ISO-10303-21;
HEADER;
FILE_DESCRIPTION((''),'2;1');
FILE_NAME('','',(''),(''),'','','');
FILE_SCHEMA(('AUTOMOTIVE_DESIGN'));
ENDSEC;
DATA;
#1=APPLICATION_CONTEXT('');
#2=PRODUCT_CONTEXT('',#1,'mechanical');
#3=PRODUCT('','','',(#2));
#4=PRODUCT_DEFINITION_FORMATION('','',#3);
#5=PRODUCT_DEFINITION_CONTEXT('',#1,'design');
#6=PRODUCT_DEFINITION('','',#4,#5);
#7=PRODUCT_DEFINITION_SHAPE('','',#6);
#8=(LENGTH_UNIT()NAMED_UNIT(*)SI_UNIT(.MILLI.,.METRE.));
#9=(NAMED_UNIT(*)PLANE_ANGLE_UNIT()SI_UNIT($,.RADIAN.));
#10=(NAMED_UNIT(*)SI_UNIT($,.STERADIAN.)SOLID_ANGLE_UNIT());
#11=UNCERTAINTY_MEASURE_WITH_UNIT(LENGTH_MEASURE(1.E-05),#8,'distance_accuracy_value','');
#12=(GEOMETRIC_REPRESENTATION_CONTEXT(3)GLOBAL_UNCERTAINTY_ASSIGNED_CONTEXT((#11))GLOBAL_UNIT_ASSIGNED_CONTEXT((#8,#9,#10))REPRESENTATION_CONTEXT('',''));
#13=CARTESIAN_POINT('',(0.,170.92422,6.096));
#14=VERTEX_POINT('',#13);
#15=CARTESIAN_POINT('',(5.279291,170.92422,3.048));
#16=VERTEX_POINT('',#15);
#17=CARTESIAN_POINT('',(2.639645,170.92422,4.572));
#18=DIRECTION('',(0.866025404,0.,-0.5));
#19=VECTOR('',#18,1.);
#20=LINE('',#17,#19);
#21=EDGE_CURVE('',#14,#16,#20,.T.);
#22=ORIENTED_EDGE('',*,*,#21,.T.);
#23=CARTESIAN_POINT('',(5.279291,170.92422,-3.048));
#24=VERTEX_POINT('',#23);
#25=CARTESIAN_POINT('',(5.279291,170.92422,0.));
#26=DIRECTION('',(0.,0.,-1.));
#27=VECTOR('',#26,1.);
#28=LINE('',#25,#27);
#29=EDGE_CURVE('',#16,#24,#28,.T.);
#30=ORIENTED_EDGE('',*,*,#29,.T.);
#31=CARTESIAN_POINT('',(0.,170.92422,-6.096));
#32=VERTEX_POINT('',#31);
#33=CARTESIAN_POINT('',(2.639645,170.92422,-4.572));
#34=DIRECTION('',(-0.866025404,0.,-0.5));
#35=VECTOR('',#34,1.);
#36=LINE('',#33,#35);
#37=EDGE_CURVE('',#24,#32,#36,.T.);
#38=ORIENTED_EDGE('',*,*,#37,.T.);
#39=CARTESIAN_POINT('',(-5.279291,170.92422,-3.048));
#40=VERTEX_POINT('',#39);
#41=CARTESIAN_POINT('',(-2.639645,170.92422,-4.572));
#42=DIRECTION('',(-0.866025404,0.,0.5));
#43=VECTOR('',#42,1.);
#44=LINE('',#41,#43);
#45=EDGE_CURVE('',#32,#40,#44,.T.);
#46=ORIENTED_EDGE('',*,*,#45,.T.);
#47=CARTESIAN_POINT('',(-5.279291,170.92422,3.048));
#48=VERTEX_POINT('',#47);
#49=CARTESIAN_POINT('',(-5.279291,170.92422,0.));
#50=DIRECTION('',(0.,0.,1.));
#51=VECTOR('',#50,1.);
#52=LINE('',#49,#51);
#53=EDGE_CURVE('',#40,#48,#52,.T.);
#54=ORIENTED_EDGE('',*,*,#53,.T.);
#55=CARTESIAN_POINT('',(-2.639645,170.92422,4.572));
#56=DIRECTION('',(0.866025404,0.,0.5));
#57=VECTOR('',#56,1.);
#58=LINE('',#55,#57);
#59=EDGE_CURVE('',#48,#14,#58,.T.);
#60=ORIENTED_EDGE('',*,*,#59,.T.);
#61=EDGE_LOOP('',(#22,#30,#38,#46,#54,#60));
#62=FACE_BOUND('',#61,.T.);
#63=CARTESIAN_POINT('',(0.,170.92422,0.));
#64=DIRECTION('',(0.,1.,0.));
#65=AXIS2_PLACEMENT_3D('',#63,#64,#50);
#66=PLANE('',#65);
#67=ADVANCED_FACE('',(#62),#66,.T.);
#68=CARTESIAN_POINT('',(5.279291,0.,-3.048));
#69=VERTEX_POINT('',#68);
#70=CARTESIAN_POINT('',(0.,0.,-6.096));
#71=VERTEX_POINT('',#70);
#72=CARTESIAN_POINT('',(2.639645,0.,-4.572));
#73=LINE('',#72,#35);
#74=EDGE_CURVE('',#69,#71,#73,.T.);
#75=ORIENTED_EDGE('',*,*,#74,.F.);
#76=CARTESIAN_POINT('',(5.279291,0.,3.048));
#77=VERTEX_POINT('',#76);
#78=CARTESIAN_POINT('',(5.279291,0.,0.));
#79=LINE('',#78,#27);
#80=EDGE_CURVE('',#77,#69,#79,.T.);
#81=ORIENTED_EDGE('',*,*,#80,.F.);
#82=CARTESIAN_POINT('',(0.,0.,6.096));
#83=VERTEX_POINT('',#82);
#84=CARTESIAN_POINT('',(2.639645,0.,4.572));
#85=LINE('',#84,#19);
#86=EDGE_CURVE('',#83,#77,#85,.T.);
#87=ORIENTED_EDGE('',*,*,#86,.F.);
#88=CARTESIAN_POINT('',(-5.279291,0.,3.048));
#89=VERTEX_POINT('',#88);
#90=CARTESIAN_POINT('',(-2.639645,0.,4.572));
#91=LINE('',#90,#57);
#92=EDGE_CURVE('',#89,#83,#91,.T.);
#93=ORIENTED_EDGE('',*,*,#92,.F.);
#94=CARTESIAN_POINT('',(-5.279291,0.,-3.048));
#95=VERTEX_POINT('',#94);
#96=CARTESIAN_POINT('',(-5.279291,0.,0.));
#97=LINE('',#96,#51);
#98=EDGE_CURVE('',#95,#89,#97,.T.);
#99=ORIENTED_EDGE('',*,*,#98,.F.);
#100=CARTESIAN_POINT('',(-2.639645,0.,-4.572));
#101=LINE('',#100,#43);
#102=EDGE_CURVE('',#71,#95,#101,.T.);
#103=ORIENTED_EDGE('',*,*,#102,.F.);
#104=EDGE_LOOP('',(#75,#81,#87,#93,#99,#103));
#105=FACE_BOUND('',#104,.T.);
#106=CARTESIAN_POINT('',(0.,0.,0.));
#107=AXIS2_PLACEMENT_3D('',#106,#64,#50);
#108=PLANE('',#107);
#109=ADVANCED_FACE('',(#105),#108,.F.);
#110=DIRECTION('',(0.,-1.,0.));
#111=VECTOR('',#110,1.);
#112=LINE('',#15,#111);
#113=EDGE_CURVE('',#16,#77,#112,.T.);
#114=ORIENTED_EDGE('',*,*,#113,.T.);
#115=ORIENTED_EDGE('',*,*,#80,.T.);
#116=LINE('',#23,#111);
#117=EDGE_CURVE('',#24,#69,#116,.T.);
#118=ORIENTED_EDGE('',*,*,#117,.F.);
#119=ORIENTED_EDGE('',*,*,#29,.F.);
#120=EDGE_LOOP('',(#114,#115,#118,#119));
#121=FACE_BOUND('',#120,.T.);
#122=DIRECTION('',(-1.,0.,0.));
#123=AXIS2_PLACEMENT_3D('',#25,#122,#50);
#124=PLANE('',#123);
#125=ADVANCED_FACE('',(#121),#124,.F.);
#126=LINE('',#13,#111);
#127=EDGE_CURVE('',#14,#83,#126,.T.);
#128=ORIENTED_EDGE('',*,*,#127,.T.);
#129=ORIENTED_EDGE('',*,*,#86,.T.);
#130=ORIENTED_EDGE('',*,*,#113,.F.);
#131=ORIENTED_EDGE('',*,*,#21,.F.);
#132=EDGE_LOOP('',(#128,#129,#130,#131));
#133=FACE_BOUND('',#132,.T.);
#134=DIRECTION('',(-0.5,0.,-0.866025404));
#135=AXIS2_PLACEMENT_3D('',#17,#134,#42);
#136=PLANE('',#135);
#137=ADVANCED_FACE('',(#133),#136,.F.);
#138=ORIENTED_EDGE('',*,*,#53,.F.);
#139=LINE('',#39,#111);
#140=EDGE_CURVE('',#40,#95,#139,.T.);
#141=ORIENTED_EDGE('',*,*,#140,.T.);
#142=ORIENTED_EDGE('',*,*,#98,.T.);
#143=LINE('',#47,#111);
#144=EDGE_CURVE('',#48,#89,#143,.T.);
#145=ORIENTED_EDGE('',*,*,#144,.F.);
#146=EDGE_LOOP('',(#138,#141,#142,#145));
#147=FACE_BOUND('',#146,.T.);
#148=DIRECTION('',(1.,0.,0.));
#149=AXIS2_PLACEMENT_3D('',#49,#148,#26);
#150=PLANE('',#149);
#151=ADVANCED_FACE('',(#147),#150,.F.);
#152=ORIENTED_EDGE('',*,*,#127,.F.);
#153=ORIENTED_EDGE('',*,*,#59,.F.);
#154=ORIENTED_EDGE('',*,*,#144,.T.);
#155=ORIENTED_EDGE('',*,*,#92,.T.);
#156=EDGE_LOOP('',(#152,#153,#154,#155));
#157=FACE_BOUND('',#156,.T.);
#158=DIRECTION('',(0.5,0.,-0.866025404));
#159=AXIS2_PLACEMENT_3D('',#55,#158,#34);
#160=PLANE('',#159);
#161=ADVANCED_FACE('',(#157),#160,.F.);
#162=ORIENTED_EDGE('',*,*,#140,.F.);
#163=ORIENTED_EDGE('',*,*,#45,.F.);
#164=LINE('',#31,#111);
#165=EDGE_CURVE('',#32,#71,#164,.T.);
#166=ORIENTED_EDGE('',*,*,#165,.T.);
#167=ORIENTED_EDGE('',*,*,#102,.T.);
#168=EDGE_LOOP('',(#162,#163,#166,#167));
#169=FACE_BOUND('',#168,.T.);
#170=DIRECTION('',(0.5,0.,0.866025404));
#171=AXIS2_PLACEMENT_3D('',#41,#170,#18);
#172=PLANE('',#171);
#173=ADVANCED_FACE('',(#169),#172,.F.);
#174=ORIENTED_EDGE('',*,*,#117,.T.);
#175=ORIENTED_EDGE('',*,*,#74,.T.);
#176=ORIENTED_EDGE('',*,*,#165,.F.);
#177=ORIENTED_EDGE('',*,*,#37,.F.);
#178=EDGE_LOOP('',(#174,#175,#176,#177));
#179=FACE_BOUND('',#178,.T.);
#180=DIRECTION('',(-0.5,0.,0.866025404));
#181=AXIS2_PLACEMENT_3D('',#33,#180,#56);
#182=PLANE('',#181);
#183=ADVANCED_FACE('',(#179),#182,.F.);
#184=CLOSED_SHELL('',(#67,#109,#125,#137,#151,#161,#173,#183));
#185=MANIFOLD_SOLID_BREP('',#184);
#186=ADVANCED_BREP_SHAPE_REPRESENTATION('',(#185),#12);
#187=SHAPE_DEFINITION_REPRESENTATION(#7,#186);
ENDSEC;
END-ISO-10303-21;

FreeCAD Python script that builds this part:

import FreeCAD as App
import Part
import Sketcher
Q = App.Units.Quantity


def add_polygon(sketch, points):
    """Adds a closed chain of lines whose ends are joined by coincident constraints."""
    first, n = sketch.GeometryCount, len(points)
    for a, b in zip(points, points[1:] + points[:1]):
        sketch.addGeometry(Part.LineSegment(App.Vector(*a, 0), App.Vector(*b, 0)), False)
    for i in range(n):
        sketch.addConstraint(Sketcher.Constraint("Coincident", first + i, 2, first + (i + 1) % n, 1))

doc = App.newDocument("Part")
params = doc.addObject("Spreadsheet::Sheet", "Params")
for row, (alias, value) in enumerate([
    ("sketch1_height", "0.24 in"),
    ("sketch1_length", "0.24 in"),
    ("pad1_length", "6.7293 in"),
], start=1):
    params.set(f"A{row}", alias)
    params.set(f"B{row}", "=" + value)
    params.setAlias(f"B{row}", alias)

body = doc.addObject("PartDesign::Body", "Body")

sketch1 = body.newObject("Sketcher::SketchObject", "Sketch")
sketch1.AttachmentSupport = (doc.getObject("XZ_Plane"), [""])
sketch1.MapMode = "FlatFace"
add_polygon(sketch1, [(-5, 3), (0, 6), (5, 3), (5, -3), (0, -6), (-5, -3)])
sketch1.addConstraint([
    Sketcher.Constraint("Vertical", 2),
    Sketcher.Constraint("Vertical", 5),
    Sketcher.Constraint("Symmetric", 0, 2, 3, 2, -1, 1),
    Sketcher.Constraint("Symmetric", 1, 2, 4, 2, -1, 1),
    Sketcher.Constraint("PointOnObject", 0, 2, -2),
    Sketcher.Constraint("Parallel", 0, 3),
    Sketcher.Constraint("Horizontal", 2, 2, 4, 2),
    Sketcher.Constraint("Angle", 0, Q("30 deg")),
    Sketcher.Constraint("DistanceY", 2, 2, 2, 1, Q("0.24 in")),
    Sketcher.Constraint("Distance", 0, Q("0.24 in")),
])
sketch1.setExpression("Constraints[14]", "Params.sketch1_height")
sketch1.setExpression("Constraints[15]", "Params.sketch1_length")
pad1 = body.newObject("PartDesign::Pad", "Pad")
pad1.Profile = sketch1
pad1.setExpression("Length", "Params.pad1_length")
pad1.Reversed = True

doc.recompute()
